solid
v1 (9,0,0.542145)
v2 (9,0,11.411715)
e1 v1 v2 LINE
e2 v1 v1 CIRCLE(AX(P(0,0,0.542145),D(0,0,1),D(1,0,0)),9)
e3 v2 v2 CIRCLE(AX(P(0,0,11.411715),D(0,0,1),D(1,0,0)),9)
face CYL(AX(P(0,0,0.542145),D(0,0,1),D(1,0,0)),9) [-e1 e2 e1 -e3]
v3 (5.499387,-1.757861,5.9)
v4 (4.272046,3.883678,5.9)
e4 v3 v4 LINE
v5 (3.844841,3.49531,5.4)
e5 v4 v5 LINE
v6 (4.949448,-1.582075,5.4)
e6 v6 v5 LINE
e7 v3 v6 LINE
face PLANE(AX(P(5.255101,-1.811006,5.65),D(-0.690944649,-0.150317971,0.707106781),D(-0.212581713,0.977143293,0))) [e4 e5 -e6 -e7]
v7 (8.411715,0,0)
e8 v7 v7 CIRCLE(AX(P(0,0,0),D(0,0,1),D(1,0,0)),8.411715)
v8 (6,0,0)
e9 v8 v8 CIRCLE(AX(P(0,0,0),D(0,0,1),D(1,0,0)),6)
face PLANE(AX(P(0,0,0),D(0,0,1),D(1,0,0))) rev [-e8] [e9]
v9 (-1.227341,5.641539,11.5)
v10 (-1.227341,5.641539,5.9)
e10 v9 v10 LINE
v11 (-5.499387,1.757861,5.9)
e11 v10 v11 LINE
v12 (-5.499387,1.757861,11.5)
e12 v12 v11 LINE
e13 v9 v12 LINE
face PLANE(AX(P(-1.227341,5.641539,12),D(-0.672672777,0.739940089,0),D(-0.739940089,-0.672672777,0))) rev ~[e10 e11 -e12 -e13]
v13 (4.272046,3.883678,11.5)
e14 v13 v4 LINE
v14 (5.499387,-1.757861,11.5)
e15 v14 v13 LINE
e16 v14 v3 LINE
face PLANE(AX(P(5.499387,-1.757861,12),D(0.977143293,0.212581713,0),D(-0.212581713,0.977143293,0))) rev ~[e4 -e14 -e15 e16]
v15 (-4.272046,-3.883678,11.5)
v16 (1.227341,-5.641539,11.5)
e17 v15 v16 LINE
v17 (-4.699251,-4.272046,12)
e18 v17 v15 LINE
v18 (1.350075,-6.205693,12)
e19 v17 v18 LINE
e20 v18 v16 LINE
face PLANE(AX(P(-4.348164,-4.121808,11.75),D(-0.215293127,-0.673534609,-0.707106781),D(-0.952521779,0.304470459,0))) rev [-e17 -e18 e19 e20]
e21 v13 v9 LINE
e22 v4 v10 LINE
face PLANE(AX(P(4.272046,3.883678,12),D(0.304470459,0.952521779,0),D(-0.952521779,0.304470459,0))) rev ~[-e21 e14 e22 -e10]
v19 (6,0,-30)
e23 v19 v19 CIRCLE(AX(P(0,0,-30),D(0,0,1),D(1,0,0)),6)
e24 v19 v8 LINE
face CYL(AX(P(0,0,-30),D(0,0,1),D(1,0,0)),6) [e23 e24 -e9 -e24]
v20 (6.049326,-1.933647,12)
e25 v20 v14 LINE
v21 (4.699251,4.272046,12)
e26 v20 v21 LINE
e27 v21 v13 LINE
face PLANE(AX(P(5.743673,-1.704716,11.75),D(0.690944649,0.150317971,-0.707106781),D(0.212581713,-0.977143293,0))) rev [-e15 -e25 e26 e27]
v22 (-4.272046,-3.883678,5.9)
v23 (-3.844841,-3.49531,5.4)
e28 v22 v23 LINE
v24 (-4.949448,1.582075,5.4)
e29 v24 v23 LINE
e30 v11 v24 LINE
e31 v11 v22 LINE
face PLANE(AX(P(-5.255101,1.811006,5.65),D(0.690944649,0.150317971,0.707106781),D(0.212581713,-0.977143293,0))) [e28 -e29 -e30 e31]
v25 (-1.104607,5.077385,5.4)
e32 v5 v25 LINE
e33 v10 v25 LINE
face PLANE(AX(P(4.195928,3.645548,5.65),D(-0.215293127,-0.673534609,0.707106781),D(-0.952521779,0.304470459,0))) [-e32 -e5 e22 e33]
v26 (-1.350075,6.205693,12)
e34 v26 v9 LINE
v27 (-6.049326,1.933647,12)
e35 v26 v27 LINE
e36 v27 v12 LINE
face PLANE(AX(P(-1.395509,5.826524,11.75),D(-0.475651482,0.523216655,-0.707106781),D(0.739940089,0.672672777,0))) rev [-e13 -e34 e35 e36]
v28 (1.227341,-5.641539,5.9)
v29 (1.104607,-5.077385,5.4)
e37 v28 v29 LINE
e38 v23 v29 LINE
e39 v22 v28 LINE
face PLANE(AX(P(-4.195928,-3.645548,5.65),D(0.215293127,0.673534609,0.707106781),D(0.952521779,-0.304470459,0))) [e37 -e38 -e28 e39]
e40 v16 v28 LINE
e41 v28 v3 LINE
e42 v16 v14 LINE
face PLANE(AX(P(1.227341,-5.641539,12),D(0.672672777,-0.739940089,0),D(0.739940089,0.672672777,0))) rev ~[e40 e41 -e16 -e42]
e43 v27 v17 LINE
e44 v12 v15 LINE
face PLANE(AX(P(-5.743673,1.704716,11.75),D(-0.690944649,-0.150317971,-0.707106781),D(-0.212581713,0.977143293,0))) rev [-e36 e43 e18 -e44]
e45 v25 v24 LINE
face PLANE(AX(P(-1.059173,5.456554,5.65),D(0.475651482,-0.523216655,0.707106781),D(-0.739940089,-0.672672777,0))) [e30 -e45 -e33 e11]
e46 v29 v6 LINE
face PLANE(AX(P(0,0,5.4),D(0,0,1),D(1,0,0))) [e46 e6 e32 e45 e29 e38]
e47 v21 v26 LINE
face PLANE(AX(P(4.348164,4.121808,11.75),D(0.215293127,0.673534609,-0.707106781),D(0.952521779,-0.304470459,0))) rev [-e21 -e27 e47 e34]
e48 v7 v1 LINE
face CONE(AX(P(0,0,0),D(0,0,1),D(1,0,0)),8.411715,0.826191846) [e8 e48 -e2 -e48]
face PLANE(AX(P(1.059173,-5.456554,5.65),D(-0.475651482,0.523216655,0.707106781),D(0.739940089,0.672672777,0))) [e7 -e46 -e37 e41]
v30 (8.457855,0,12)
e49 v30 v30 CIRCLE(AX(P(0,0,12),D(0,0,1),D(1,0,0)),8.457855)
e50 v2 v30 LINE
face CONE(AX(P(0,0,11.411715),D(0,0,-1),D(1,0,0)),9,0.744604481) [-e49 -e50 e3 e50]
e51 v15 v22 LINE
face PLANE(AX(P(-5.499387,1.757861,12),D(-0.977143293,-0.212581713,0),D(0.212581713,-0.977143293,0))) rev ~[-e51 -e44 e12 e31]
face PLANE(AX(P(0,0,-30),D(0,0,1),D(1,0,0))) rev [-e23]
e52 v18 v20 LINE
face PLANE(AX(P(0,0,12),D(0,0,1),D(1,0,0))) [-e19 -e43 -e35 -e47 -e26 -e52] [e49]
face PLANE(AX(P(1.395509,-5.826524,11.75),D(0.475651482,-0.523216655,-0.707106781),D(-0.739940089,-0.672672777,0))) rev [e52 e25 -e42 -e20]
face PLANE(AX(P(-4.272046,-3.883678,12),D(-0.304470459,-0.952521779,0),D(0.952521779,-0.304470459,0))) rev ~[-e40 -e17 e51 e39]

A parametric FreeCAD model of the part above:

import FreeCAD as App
import Part
import Sketcher
Q = App.Units.Quantity


def edges_at(feature, points):
    """Names of the edges that pass closest to the given points."""
    edges = feature.Shape.Edges
    near = lambda p: min(range(len(edges)), key=lambda i: edges[i].distToShape(Part.Vertex(*p))[0])
    return sorted({f"Edge{near(p) + 1}" for p in points})


def add_polygon(sketch, points):
    """Adds a closed chain of lines whose ends are joined by coincident constraints."""
    first, n = sketch.GeometryCount, len(points)
    for a, b in zip(points, points[1:] + points[:1]):
        sketch.addGeometry(Part.LineSegment(App.Vector(*a, 0), App.Vector(*b, 0)), False)
    for i in range(n):
        sketch.addConstraint(Sketcher.Constraint("Coincident", first + i, 2, first + (i + 1) % n, 1))

doc = App.newDocument("Part")
body = doc.addObject("PartDesign::Body", "Body")

# Sketch on XZ plane
sketch1 = body.newObject("Sketcher::SketchObject", "Sketch")
sketch1.AttachmentSupport = (doc.getObject("XZ_Plane"), [""])
sketch1.MapMode = "FlatFace"
add_polygon(sketch1, [(8.5, 12), (0, 12), (0, -30), (6, -30), (6, 0), (8.4, 0), (9, 0.5), (9, 11.4)])  # lines 0-7
sketch1.addConstraint([
    Sketcher.Constraint("Horizontal", 0),
    Sketcher.Constraint("Vertical", 1),
    Sketcher.Constraint("Horizontal", 2),
    Sketcher.Constraint("Vertical", 3),
    Sketcher.Constraint("Horizontal", 4),
    Sketcher.Constraint("Vertical", 6),
    Sketcher.Constraint("PointOnObject", 0, 2, -2),
    Sketcher.Constraint("PointOnObject", 3, 2, -1),
    Sketcher.Constraint("Perpendicular", 5, 7),
    Sketcher.Constraint("Equal", 5, 7),
    Sketcher.Constraint("DistanceX", 2, 1, 2, 2, Q("6 mm")),
    Sketcher.Constraint("DistanceY", 1, 2, 1, 1, Q("42 mm")),
    Sketcher.Constraint("DistanceY", 3, 1, 3, 2, Q("30 mm")),
    Sketcher.Constraint("DistanceX", -1, 1, 5, 2, Q("9 mm")),
    Sketcher.Constraint("Distance", 5, Q("0.8 mm")),
    Sketcher.Constraint("DistanceY", 6, 1, 6, 2, Q("10.86957 mm")),
])
revolution = body.newObject("PartDesign::Revolution", "Revolution")
revolution.Profile = sketch1
revolution.ReferenceAxis = (sketch1, ["V_Axis"])
revolution.Angle = 360

# Sketch on XY plane
sketch2 = body.newObject("Sketcher::SketchObject", "Sketch001")
sketch2.AttachmentSupport = (doc.getObject("XY_Plane"), [""])
sketch2.MapMode = "FlatFace"
sketch2.AttachmentOffset = App.Placement(App.Vector(0, 0, 12), App.Rotation())
add_polygon(sketch2, [(-1, 6), (-5, 2), (-4, -4), (1, -6), (5, -2), (4, 4)])  # lines 0-5
sketch2.addConstraint([
    Sketcher.Constraint("Symmetric", 0, 2, 3, 2, -1, 1),
    Sketcher.Constraint("Symmetric", 1, 2, 4, 2, -1, 1),
    Sketcher.Constraint("Symmetric", 2, 2, 5, 2, -1, 1),
    Sketcher.Constraint("Equal", 0, 1),
    Sketcher.Constraint("Equal", 1, 2),
    Sketcher.Constraint("DistanceY", 2, 2, 0, 2, Q("7.3994 mm")),
    Sketcher.Constraint("DistanceY", -1, 1, 0, 2, Q("1.757861 mm")),
    Sketcher.Constraint("DistanceY", 1, 2, -1, 1, Q("3.883678 mm")),
    Sketcher.Constraint("DistanceX", -1, 1, 2, 2, Q("1.227341 mm")),
])
pocket1 = body.newObject("PartDesign::Pocket", "Pocket")
pocket1.Profile = sketch2
pocket1.Length = 6.6
doc.recompute()

chamfer = body.newObject("PartDesign::Chamfer", "Chamfer")
chamfer.Base = (pocket1, edges_at(pocket1, [
    (3.363, -3.7, 12),
    (-1.522, -4.763, 12),
    (-4.886, -1.063, 12),
    (-3.363, 3.7, 12),
    (1.522, 4.763, 12),
    (4.886, 1.063, 12),
    (4.886, 1.063, 5.4),
    (3.363, -3.7, 5.4),
    (-1.522, -4.763, 5.4),
    (-4.886, -1.063, 5.4),
    (-3.363, 3.7, 5.4),
    (1.522, 4.763, 5.4),
]))
chamfer.Size = 0.5

doc.recompute()
